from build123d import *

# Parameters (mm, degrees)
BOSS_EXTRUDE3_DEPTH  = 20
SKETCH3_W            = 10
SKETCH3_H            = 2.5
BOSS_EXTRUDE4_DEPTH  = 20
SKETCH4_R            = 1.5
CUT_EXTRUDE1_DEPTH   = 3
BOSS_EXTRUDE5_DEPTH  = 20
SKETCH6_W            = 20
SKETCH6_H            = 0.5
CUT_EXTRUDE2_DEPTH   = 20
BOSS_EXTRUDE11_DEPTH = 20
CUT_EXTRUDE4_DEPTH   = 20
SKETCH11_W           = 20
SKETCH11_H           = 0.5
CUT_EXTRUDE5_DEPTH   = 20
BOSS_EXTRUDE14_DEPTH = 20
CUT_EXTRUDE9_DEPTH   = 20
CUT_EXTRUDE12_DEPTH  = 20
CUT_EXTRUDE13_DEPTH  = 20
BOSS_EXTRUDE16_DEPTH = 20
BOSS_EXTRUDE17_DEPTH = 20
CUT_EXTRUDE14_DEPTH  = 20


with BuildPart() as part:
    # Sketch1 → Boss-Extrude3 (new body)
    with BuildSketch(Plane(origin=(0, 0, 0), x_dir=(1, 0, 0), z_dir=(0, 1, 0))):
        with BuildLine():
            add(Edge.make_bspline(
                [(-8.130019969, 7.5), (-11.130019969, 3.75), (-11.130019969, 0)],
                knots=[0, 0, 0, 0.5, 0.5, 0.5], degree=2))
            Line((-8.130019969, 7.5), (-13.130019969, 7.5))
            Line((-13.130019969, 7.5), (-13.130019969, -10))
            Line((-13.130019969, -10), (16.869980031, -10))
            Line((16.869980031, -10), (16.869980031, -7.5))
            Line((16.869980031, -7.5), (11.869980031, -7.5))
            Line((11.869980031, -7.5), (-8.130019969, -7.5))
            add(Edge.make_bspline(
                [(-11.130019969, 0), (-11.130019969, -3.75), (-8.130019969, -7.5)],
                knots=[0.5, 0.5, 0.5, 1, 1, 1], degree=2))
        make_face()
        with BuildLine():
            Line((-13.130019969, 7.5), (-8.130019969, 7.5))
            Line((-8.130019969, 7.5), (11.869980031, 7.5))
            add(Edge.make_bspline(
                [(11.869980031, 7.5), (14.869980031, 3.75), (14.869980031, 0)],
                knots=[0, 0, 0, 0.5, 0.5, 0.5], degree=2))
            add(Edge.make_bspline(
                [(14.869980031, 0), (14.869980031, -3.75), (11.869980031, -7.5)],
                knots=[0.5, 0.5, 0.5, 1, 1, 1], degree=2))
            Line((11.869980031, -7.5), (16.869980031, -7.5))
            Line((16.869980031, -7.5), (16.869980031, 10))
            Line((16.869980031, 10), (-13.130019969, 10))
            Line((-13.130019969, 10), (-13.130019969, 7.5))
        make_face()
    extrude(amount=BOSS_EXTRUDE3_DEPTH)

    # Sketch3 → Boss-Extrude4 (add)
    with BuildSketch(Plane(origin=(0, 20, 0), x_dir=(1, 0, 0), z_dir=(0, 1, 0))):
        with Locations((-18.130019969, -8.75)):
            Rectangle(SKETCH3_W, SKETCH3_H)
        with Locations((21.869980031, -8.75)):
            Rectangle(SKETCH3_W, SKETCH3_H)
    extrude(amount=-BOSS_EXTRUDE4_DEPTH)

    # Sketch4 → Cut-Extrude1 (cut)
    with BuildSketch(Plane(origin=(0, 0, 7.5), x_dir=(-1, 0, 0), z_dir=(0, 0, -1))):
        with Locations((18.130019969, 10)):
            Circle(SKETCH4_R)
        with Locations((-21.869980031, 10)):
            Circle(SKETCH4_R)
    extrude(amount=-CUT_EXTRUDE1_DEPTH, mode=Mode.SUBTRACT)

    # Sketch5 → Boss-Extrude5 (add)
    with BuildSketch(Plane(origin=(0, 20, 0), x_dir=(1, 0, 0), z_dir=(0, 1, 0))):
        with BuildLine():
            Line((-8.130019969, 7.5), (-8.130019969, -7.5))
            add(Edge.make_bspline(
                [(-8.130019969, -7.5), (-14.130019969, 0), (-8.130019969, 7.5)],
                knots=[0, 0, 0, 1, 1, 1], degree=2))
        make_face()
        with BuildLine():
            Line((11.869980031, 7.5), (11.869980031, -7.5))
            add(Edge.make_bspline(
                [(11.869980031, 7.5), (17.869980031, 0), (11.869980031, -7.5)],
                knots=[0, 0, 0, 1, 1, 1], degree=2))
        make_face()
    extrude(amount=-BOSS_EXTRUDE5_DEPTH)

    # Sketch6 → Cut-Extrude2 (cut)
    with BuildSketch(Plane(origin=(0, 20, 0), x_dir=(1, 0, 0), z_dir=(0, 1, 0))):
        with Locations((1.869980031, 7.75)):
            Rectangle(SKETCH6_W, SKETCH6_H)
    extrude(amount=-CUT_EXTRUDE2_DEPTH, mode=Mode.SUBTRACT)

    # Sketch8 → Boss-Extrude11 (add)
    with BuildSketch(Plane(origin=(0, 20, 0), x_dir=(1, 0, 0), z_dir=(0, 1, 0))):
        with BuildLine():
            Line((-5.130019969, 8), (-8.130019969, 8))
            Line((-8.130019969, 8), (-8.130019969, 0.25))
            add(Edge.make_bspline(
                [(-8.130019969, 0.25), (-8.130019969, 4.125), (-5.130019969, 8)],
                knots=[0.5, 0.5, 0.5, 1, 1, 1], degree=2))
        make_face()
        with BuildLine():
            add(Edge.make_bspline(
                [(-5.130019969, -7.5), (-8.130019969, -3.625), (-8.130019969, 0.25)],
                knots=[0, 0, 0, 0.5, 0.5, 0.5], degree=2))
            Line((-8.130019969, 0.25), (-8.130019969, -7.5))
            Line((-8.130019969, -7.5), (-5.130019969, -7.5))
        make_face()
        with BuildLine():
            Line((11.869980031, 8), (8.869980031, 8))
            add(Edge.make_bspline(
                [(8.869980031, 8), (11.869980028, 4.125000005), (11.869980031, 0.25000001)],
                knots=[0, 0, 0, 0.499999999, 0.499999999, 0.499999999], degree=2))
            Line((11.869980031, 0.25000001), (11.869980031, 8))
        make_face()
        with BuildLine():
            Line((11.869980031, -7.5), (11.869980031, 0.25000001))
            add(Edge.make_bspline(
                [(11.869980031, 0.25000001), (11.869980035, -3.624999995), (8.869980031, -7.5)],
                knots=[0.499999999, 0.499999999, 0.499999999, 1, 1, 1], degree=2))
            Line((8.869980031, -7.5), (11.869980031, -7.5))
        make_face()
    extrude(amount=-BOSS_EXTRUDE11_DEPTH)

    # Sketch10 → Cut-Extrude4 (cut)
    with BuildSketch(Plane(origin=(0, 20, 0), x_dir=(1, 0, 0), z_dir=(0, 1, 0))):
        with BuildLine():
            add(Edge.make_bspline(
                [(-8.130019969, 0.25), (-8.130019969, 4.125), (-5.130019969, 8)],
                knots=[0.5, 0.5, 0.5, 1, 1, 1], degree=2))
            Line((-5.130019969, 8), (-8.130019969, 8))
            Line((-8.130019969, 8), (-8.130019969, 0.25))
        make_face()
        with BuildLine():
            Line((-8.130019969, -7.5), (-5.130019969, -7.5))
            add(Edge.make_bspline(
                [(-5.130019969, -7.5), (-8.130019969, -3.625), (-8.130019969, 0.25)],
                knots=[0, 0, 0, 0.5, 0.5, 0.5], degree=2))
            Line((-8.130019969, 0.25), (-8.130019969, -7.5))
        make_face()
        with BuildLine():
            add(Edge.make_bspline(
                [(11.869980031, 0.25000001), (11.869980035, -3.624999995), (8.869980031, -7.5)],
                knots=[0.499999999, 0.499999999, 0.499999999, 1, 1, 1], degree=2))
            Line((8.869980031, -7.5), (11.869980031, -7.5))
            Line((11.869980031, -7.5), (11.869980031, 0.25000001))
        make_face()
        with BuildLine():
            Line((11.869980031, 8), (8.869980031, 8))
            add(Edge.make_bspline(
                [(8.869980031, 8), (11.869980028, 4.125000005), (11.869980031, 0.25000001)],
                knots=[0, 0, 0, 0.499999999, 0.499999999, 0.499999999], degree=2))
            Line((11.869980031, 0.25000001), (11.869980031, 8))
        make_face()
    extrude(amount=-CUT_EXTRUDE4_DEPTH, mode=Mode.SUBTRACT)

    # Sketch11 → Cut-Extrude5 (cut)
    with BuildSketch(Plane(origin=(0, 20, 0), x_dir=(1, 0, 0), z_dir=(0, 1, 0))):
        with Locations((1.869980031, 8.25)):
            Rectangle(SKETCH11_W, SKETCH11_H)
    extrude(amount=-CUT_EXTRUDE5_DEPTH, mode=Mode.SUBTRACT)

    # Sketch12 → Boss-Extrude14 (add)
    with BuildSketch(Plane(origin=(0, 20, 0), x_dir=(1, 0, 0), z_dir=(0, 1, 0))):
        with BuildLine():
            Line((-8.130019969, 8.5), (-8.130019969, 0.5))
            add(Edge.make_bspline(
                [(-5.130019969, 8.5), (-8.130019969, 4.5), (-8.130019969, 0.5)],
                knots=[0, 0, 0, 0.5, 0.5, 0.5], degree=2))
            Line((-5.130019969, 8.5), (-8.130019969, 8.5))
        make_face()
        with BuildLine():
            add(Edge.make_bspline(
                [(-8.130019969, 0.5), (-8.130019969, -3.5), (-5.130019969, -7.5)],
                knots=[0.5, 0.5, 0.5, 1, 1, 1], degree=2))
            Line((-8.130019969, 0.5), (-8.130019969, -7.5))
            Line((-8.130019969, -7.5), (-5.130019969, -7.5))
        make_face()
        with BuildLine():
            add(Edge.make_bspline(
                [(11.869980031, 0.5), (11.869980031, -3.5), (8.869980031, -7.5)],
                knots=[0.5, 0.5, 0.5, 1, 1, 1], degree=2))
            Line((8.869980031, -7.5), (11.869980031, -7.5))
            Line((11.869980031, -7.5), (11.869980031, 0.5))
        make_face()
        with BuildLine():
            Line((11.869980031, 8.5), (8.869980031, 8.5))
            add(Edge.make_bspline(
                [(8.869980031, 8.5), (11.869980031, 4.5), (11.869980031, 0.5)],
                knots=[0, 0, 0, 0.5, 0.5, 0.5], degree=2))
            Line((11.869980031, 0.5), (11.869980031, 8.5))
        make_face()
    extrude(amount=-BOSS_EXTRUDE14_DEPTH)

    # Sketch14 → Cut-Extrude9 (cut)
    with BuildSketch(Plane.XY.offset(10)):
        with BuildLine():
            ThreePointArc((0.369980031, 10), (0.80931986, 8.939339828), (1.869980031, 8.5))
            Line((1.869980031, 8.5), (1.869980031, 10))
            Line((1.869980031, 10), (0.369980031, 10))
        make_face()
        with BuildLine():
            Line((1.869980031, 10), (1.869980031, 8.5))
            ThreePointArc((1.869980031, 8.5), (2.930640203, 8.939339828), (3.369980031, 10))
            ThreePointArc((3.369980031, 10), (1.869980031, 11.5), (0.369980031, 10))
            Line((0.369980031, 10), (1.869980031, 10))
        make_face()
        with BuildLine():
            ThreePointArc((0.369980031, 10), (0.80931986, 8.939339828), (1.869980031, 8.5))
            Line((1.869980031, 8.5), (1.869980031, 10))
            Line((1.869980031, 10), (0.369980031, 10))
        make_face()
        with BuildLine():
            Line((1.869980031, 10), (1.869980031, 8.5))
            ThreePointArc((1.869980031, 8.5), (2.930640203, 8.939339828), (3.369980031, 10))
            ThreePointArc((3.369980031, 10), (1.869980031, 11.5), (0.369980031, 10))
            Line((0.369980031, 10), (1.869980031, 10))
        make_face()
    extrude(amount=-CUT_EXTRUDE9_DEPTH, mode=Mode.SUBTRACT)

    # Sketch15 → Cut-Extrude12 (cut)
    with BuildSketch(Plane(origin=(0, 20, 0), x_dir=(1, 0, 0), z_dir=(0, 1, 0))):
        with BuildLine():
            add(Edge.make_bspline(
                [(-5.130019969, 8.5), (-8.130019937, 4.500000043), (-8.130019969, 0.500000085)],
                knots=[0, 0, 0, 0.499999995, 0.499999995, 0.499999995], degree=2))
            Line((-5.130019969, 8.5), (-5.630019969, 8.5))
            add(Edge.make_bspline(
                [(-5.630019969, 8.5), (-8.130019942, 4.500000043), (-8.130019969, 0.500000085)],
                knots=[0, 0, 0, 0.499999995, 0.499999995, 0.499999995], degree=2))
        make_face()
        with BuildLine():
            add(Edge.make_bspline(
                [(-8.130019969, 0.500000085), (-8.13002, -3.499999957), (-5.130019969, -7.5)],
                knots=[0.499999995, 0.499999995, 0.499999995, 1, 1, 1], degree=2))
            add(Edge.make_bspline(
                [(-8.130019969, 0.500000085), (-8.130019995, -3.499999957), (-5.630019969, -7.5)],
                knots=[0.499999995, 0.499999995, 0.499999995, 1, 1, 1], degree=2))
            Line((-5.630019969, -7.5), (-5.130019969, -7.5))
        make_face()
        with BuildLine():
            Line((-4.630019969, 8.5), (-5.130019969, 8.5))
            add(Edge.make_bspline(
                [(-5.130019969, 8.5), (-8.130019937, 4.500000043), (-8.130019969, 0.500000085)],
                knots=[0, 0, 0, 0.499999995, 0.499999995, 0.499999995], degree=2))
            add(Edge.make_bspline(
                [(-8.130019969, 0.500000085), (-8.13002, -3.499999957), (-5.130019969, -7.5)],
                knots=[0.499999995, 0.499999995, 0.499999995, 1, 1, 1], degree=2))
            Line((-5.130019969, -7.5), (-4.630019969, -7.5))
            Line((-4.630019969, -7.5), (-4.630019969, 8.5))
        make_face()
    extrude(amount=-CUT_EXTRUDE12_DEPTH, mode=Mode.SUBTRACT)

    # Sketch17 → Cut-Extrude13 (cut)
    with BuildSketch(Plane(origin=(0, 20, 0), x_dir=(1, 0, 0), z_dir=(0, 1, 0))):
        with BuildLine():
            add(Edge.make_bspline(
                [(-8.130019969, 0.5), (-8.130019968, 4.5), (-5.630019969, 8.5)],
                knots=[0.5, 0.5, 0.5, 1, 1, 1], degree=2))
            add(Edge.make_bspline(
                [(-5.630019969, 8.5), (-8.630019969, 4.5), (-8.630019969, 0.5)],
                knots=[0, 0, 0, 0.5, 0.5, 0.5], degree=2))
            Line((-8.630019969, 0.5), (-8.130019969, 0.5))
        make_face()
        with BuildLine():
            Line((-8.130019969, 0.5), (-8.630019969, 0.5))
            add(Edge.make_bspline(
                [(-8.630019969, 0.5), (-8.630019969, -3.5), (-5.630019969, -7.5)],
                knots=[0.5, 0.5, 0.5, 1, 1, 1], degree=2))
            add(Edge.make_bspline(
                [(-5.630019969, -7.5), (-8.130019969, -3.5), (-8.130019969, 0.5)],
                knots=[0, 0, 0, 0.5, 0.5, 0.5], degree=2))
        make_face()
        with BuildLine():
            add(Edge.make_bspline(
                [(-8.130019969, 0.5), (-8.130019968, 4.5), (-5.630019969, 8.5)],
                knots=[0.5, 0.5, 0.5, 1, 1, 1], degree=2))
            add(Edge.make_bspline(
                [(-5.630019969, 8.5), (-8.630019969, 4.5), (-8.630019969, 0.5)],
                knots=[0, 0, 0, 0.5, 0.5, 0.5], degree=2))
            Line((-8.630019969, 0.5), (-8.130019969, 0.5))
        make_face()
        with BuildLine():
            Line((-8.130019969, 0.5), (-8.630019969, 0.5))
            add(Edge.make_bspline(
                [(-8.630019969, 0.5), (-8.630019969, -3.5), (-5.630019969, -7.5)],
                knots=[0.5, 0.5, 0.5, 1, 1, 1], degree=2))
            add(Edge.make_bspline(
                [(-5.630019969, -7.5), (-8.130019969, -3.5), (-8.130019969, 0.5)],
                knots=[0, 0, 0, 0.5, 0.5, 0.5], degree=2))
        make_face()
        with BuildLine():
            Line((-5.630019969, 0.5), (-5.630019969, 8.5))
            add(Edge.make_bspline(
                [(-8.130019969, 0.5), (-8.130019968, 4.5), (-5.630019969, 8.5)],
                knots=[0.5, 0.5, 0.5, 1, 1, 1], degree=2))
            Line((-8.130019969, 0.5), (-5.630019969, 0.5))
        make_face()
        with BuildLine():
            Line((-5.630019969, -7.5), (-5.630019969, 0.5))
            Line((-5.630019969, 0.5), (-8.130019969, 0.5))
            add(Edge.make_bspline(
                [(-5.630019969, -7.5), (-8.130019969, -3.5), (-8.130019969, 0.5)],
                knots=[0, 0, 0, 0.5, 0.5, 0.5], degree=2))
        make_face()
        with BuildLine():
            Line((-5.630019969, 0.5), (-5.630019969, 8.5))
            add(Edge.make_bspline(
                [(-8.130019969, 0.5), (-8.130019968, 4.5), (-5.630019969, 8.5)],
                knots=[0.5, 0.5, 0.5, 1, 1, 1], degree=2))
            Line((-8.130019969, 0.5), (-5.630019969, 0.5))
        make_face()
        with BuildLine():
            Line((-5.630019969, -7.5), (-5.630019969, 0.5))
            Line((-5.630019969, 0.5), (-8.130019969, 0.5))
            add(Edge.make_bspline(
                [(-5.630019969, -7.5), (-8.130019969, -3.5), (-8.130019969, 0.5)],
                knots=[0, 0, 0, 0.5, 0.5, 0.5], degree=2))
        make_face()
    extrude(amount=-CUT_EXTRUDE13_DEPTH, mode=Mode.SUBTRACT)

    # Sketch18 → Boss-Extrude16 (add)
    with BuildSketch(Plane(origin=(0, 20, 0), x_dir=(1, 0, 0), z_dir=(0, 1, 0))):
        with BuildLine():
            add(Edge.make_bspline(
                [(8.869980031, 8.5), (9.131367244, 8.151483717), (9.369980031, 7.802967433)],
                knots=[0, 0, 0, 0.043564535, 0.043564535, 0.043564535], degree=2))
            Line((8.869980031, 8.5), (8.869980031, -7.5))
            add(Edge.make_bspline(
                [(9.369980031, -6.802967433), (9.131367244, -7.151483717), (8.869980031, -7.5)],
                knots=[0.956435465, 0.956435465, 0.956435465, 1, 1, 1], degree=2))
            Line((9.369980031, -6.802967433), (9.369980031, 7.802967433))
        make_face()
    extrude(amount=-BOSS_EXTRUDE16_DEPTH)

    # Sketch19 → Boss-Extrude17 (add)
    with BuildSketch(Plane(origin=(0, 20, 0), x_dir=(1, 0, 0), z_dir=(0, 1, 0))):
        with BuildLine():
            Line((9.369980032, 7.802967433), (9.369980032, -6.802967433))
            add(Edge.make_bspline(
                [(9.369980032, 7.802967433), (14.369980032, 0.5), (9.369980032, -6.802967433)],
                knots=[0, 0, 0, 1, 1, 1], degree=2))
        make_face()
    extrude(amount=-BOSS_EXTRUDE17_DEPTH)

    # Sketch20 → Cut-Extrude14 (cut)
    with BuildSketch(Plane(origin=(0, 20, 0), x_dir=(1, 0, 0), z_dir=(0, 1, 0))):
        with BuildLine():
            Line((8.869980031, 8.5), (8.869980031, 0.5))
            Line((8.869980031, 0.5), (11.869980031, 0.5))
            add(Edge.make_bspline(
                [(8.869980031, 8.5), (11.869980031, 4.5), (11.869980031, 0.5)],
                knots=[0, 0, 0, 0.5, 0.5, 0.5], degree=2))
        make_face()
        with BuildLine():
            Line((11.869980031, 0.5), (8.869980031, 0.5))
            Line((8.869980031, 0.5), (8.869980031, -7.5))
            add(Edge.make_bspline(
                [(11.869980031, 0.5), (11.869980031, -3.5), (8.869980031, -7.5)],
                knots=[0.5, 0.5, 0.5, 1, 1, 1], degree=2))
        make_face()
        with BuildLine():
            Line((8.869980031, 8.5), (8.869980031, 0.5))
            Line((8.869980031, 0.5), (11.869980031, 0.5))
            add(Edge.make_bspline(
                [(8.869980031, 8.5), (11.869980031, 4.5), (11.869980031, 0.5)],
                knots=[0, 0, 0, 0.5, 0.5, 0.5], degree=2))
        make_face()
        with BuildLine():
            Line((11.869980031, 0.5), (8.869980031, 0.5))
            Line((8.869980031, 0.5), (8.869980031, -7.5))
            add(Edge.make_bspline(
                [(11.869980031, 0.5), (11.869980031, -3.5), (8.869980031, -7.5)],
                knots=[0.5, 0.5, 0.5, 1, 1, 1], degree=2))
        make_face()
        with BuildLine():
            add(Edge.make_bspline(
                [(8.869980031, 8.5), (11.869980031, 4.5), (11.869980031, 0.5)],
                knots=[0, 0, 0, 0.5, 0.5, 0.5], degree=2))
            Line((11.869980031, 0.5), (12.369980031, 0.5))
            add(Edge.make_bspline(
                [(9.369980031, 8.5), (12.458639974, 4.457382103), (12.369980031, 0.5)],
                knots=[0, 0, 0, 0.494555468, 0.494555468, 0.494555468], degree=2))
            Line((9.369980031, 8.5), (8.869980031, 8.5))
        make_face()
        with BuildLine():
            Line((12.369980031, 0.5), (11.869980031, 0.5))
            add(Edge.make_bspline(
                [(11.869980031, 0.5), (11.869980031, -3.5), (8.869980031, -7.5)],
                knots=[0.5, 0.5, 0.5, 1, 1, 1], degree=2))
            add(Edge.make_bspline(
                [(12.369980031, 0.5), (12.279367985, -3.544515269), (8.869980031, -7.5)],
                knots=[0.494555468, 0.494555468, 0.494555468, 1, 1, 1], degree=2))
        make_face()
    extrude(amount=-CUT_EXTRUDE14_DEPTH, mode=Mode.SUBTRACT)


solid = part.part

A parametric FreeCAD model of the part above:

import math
import FreeCAD as App
import Part
import Sketcher
from FreeCAD import Vector
Q = App.Units.Quantity

doc = App.newDocument("Part")
body = doc.addObject("PartDesign::Body", "Body")

sketch1 = body.newObject("Sketcher::SketchObject", "Sketch")
sketch1.AttachmentSupport = (doc.getObject("XZ_Plane"), [""])
sketch1.MapMode = "FlatFace"
sketch1.addGeometry(Part.BSplineCurve([Vector(-8.13002, -7.5, 0), Vector(-14.13002, 0, 0), Vector(-8.13002, 7.5, 0)], [3, 3], [0, 1], False, 2, [1, 1, 1], False), False)
sketch1.addGeometry(Part.LineSegment(Vector(-8.13002, -7.5, 0), Vector(11.86998, -7.5, 0)), False)
sketch1.addGeometry(Part.BSplineCurve([Vector(11.86998, -7.5, 0), Vector(17.86998, 0, 0), Vector(11.86998, 7.5, 0)], [3, 3], [0, 1], False, 2, [1, 1, 1], False), False)
sketch1.addGeometry(Part.LineSegment(Vector(11.86998, 7.5, 0), Vector(-8.13002, 7.5, 0)), False)
sketch1.addGeometry(Part.LineSegment(Vector(16.86998, 10, 0), Vector(16.86998, -10, 0)), False)
sketch1.addGeometry(Part.LineSegment(Vector(16.86998, -10, 0), Vector(-13.13002, -10, 0)), False)
sketch1.addGeometry(Part.LineSegment(Vector(-13.13002, -10, 0), Vector(-13.13002, 10, 0)), False)
sketch1.addGeometry(Part.LineSegment(Vector(-13.13002, 10, 0), Vector(16.86998, 10, 0)), False)
sketch1.addConstraint(Sketcher.Constraint("Block", 0))
sketch1.addConstraint(Sketcher.Constraint("Block", 2))
sketch1.addConstraint(Sketcher.Constraint("Coincident", 0, 1, 1, 1))
sketch1.addConstraint(Sketcher.Constraint("Coincident", 1, 2, 2, 1))
sketch1.addConstraint(Sketcher.Constraint("Coincident", 2, 2, 3, 1))
sketch1.addConstraint(Sketcher.Constraint("Coincident", 3, 2, 0, 2))
sketch1.addConstraint(Sketcher.Constraint("Coincident", 4, 2, 5, 1))
sketch1.addConstraint(Sketcher.Constraint("Coincident", 5, 2, 6, 1))
sketch1.addConstraint(Sketcher.Constraint("Coincident", 6, 2, 7, 1))
sketch1.addConstraint(Sketcher.Constraint("Coincident", 7, 2, 4, 1))
sketch1.addConstraint(Sketcher.Constraint("Vertical", 4))
sketch1.addConstraint(Sketcher.Constraint("Horizontal", 5))
sketch1.addConstraint(Sketcher.Constraint("Vertical", 6))
sketch1.addConstraint(Sketcher.Constraint("Horizontal", 7))
sketch1.addConstraint(Sketcher.Constraint("Equal", 3, 4))
sketch1.addConstraint(Sketcher.Constraint("DistanceX", 5, 2, 5, 1, Q("30 mm")))
sketch1.addConstraint(Sketcher.Constraint("DistanceY", 4, 2, -1, 1, Q("10 mm")))
sketch1.addConstraint(Sketcher.Constraint("DistanceX", 1, 2, 4, 2, Q("5 mm")))
pad1 = body.newObject("PartDesign::Pad", "Pad")
pad1.Profile = sketch1
pad1.Length = 20
pad1.Reversed = True

sketch2 = body.newObject("Sketcher::SketchObject", "Sketch001")
sketch2.AttachmentSupport = (doc.getObject("XZ_Plane"), [""])
sketch2.MapMode = "FlatFace"
sketch2.AttachmentOffset = App.Placement(Vector(0, 0, -20), App.Rotation())
sketch2.addGeometry(Part.LineSegment(Vector(-23.1, 7.5, 0), Vector(-23.1, 10, 0)), False)
sketch2.addGeometry(Part.LineSegment(Vector(-23.1, 10, 0), Vector(-13.1, 10, 0)), False)
sketch2.addGeometry(Part.LineSegment(Vector(-13.1, 10, 0), Vector(-13.1, 7.5, 0)), False)
sketch2.addGeometry(Part.LineSegment(Vector(-13.1, 7.5, 0), Vector(-23.1, 7.5, 0)), False)
sketch2.addGeometry(Part.LineSegment(Vector(16.9, 7.5, 0), Vector(16.9, 10, 0)), False)
sketch2.addGeometry(Part.LineSegment(Vector(16.9, 10, 0), Vector(26.9, 10, 0)), False)
sketch2.addGeometry(Part.LineSegment(Vector(26.9, 10, 0), Vector(26.9, 7.5, 0)), False)
sketch2.addGeometry(Part.LineSegment(Vector(26.9, 7.5, 0), Vector(16.9, 7.5, 0)), False)
sketch2.addConstraint(Sketcher.Constraint("Coincident", 0, 2, 1, 1))
sketch2.addConstraint(Sketcher.Constraint("Coincident", 1, 2, 2, 1))
sketch2.addConstraint(Sketcher.Constraint("Coincident", 2, 2, 3, 1))
sketch2.addConstraint(Sketcher.Constraint("Coincident", 3, 2, 0, 1))
sketch2.addConstraint(Sketcher.Constraint("Coincident", 4, 2, 5, 1))
sketch2.addConstraint(Sketcher.Constraint("Coincident", 5, 2, 6, 1))
sketch2.addConstraint(Sketcher.Constraint("Coincident", 6, 2, 7, 1))
sketch2.addConstraint(Sketcher.Constraint("Coincident", 7, 2, 4, 1))
sketch2.addConstraint(Sketcher.Constraint("Vertical", 0))
sketch2.addConstraint(Sketcher.Constraint("Horizontal", 1))
sketch2.addConstraint(Sketcher.Constraint("Vertical", 2))
sketch2.addConstraint(Sketcher.Constraint("Horizontal", 3))
sketch2.addConstraint(Sketcher.Constraint("Vertical", 4))
sketch2.addConstraint(Sketcher.Constraint("Horizontal", 5))
sketch2.addConstraint(Sketcher.Constraint("Vertical", 6))
sketch2.addConstraint(Sketcher.Constraint("Horizontal", 7))
sketch2.addConstraint(Sketcher.Constraint("Horizontal", 1, 2, 4, 2))
sketch2.addConstraint(Sketcher.Constraint("Horizontal", 3, 2, 6, 2))
sketch2.addConstraint(Sketcher.Constraint("Equal", 3, 5))
sketch2.addConstraint(Sketcher.Constraint("DistanceX", 1, 1, 1, 2, Q("10 mm")))
sketch2.addConstraint(Sketcher.Constraint("DistanceY", 0, 1, 0, 2, Q("2.5 mm")))
sketch2.addConstraint(Sketcher.Constraint("DistanceY", -1, 1, 0, 2, Q("10 mm")))
sketch2.addConstraint(Sketcher.Constraint("DistanceX", 1, 2, 4, 2, Q("30 mm")))
sketch2.addConstraint(Sketcher.Constraint("DistanceX", 0, 2, -1, 1, Q("23.13002 mm")))
pad2 = body.newObject("PartDesign::Pad", "Pad001")
pad2.Profile = sketch2
pad2.Length = 20

sketch3 = body.newObject("Sketcher::SketchObject", "Sketch002")
sketch3.AttachmentSupport = (doc.getObject("XY_Plane"), [""])
sketch3.MapMode = "FlatFace"
sketch3.AttachmentOffset = App.Placement(Vector(0, 0, 7.5), App.Rotation())
sketch3.addGeometry(Part.Circle(Vector(-18.1, 10, 0), Vector(0, 0, 1), 1.5), False)
sketch3.addGeometry(Part.Circle(Vector(21.9, 10, 0), Vector(0, 0, 1), 1.5), False)
sketch3.addConstraint(Sketcher.Constraint("Equal", 0, 1))
sketch3.addConstraint(Sketcher.Constraint("Horizontal", 0, 3, 1, 3))
sketch3.addConstraint(Sketcher.Constraint("Diameter", 0, Q("3 mm")))
sketch3.addConstraint(Sketcher.Constraint("DistanceY", -1, 1, 0, 3, Q("10 mm")))
sketch3.addConstraint(Sketcher.Constraint("DistanceX", 0, 3, 1, 3, Q("40 mm")))
sketch3.addConstraint(Sketcher.Constraint("DistanceX", 0, 3, -1, 1, Q("18.13002 mm")))
pocket1 = body.newObject("PartDesign::Pocket", "Pocket")
pocket1.Profile = sketch3
pocket1.Length = 3
pocket1.Reversed = True

sketch4 = body.newObject("Sketcher::SketchObject", "Sketch003")
sketch4.AttachmentSupport = (doc.getObject("XZ_Plane"), [""])
sketch4.MapMode = "FlatFace"
sketch4.AttachmentOffset = App.Placement(Vector(0, 0, -20), App.Rotation())
sketch4.addGeometry(Part.LineSegment(Vector(-8.13002, 7.5, 0), Vector(-8.13002, -7.5, 0)), False)
sketch4.addGeometry(Part.BSplineCurve([Vector(-8.13002, 7.5, 0), Vector(-14.13002, 0, 0), Vector(-8.13002, -7.5, 0)], [3, 3], [0, 1], False, 2, [1, 1, 1], False), False)
sketch4.addGeometry(Part.LineSegment(Vector(11.86998, -7.5, 0), Vector(11.86998, 7.5, 0)), False)
sketch4.addGeometry(Part.BSplineCurve([Vector(11.86998, -7.5, 0), Vector(17.86998, 0, 0), Vector(11.86998, 7.5, 0)], [3, 3], [0, 1], False, 2, [1, 1, 1], False), False)
sketch4.addConstraint(Sketcher.Constraint("Block", 1))
sketch4.addConstraint(Sketcher.Constraint("Block", 3))
sketch4.addConstraint(Sketcher.Constraint("Coincident", 0, 1, 1, 1))
sketch4.addConstraint(Sketcher.Constraint("Coincident", 1, 2, 0, 2))
sketch4.addConstraint(Sketcher.Constraint("Coincident", 2, 1, 3, 1))
sketch4.addConstraint(Sketcher.Constraint("Coincident", 3, 2, 2, 2))
pad3 = body.newObject("PartDesign::Pad", "Pad002")
pad3.Profile = sketch4
pad3.Length = 20

sketch5 = body.newObject("Sketcher::SketchObject", "Sketch004")
sketch5.AttachmentSupport = (doc.getObject("XZ_Plane"), [""])
sketch5.MapMode = "FlatFace"
sketch5.AttachmentOffset = App.Placement(Vector(0, 0, -20), App.Rotation())
sketch5.addGeometry(Part.LineSegment(Vector(-8.1, -8, 0), Vector(-8.1, -7.5, 0)), False)
sketch5.addGeometry(Part.LineSegment(Vector(-8.1, -7.5, 0), Vector(11.9, -7.5, 0)), False)
sketch5.addGeometry(Part.LineSegment(Vector(11.9, -7.5, 0), Vector(11.9, -8, 0)), False)
sketch5.addGeometry(Part.LineSegment(Vector(11.9, -8, 0), Vector(-8.1, -8, 0)), False)
sketch5.addConstraint(Sketcher.Constraint("Coincident", 0, 2, 1, 1))
sketch5.addConstraint(Sketcher.Constraint("Coincident", 1, 2, 2, 1))
sketch5.addConstraint(Sketcher.Constraint("Coincident", 2, 2, 3, 1))
sketch5.addConstraint(Sketcher.Constraint("Coincident", 3, 2, 0, 1))
sketch5.addConstraint(Sketcher.Constraint("Vertical", 0))
sketch5.addConstraint(Sketcher.Constraint("Horizontal", 1))
sketch5.addConstraint(Sketcher.Constraint("Vertical", 2))
sketch5.addConstraint(Sketcher.Constraint("Horizontal", 3))
sketch5.addConstraint(Sketcher.Constraint("DistanceX", 1, 1, 1, 2, Q("20 mm")))
sketch5.addConstraint(Sketcher.Constraint("DistanceY", 0, 1, 0, 2, Q("0.5 mm")))
sketch5.addConstraint(Sketcher.Constraint("DistanceY", 2, 2, -1, 1, Q("8 mm")))
sketch5.addConstraint(Sketcher.Constraint("DistanceX", 0, 2, -1, 1, Q("8.13002 mm")))
pocket2 = body.newObject("PartDesign::Pocket", "Pocket001")
pocket2.Profile = sketch5
pocket2.Length = 20
pocket2.Reversed = True

sketch6 = body.newObject("Sketcher::SketchObject", "Sketch005")
sketch6.AttachmentSupport = (doc.getObject("XZ_Plane"), [""])
sketch6.MapMode = "FlatFace"
sketch6.AttachmentOffset = App.Placement(Vector(0, 0, -20), App.Rotation())
sketch6.addGeometry(Part.LineSegment(Vector(-5.13002, -8, 0), Vector(-8.13002, -8, 0)), False)
sketch6.addGeometry(Part.LineSegment(Vector(-8.13002, -8, 0), Vector(-8.13002, -0.25, 0)), False)
sketch6.addGeometry(Part.BSplineCurve([Vector(-8.13002, -0.25, 0), Vector(-8.13002, -4.125, 0), Vector(-5.13002, -8, 0)], [3, 3], [0.5, 1], False, 2, [1, 1, 1], False), False)
sketch6.addGeometry(Part.BSplineCurve([Vector(-5.13002, 7.5, 0), Vector(-8.13002, 3.625, 0), Vector(-8.13002, -0.25, 0)], [3, 3], [0, 0.5], False, 2, [1, 1, 1], False), False)
sketch6.addGeometry(Part.LineSegment(Vector(-8.13002, -0.25, 0), Vector(-8.13002, 7.5, 0)), False)
sketch6.addGeometry(Part.LineSegment(Vector(-8.13002, 7.5, 0), Vector(-5.13002, 7.5, 0)), False)
sketch6.addGeometry(Part.LineSegment(Vector(11.86998, -8, 0), Vector(8.86998, -8, 0)), False)
sketch6.addGeometry(Part.BSplineCurve([Vector(8.86998, -8, 0), Vector(11.86998, -4.125, 0), Vector(11.86998, -0.25, 0)], [3, 3], [0, 0.499999999], False, 2, [1, 1, 1], False), False)
sketch6.addGeometry(Part.LineSegment(Vector(11.86998, -0.25, 0), Vector(11.86998, -8, 0)), False)
sketch6.addGeometry(Part.LineSegment(Vector(11.86998, 7.5, 0), Vector(11.86998, -0.25, 0)), False)
sketch6.addGeometry(Part.BSplineCurve([Vector(11.86998, -0.25, 0), Vector(11.86998, 3.625, 0), Vector(8.86998, 7.5, 0)], [3, 3], [0.499999999, 1], False, 2, [1, 1, 1], False), False)
sketch6.addGeometry(Part.LineSegment(Vector(8.86998, 7.5, 0), Vector(11.86998, 7.5, 0)), False)
sketch6.addConstraint(Sketcher.Constraint("Block", 2))
sketch6.addConstraint(Sketcher.Constraint("Block", 3))
sketch6.addConstraint(Sketcher.Constraint("Block", 7))
sketch6.addConstraint(Sketcher.Constraint("Block", 10))
sketch6.addConstraint(Sketcher.Constraint("Coincident", 0, 2, 1, 1))
sketch6.addConstraint(Sketcher.Constraint("Coincident", 1, 2, 2, 1))
sketch6.addConstraint(Sketcher.Constraint("Coincident", 2, 2, 0, 1))
sketch6.addConstraint(Sketcher.Constraint("Coincident", 3, 2, 4, 1))
sketch6.addConstraint(Sketcher.Constraint("Coincident", 4, 2, 5, 1))
sketch6.addConstraint(Sketcher.Constraint("Coincident", 5, 2, 3, 1))
sketch6.addConstraint(Sketcher.Constraint("Coincident", 6, 2, 7, 1))
sketch6.addConstraint(Sketcher.Constraint("Coincident", 7, 2, 8, 1))
sketch6.addConstraint(Sketcher.Constraint("Coincident", 8, 2, 6, 1))
sketch6.addConstraint(Sketcher.Constraint("Coincident", 9, 2, 10, 1))
sketch6.addConstraint(Sketcher.Constraint("Coincident", 10, 2, 11, 1))
sketch6.addConstraint(Sketcher.Constraint("Coincident", 11, 2, 9, 1))
sketch6.addConstraint(Sketcher.Constraint("Horizontal", 0))
sketch6.addConstraint(Sketcher.Constraint("Vertical", 1))
sketch6.addConstraint(Sketcher.Constraint("Vertical", 4))
sketch6.addConstraint(Sketcher.Constraint("Horizontal", 5))
sketch6.addConstraint(Sketcher.Constraint("Horizontal", 6))
sketch6.addConstraint(Sketcher.Constraint("Vertical", 8))
sketch6.addConstraint(Sketcher.Constraint("Vertical", 9))
sketch6.addConstraint(Sketcher.Constraint("Horizontal", 11))
pad4 = body.newObject("PartDesign::Pad", "Pad003")
pad4.Profile = sketch6
pad4.Length = 20

sketch7 = body.newObject("Sketcher::SketchObject", "Sketch006")
sketch7.AttachmentSupport = (doc.getObject("XZ_Plane"), [""])
sketch7.MapMode = "FlatFace"
sketch7.AttachmentOffset = App.Placement(Vector(0, 0, -20), App.Rotation())
sketch7.addGeometry(Part.BSplineCurve([Vector(-8.13002, -0.25, 0), Vector(-8.13002, -4.125, 0), Vector(-5.13002, -8, 0)], [3, 3], [0.5, 1], False, 2, [1, 1, 1], False), False)
sketch7.addGeometry(Part.LineSegment(Vector(-5.13002, -8, 0), Vector(-8.13002, -8, 0)), False)
sketch7.addGeometry(Part.LineSegment(Vector(-8.13002, -8, 0), Vector(-8.13002, -0.25, 0)), False)
sketch7.addGeometry(Part.LineSegment(Vector(-8.13002, 7.5, 0), Vector(-5.13002, 7.5, 0)), False)
sketch7.addGeometry(Part.BSplineCurve([Vector(-5.13002, 7.5, 0), Vector(-8.13002, 3.625, 0), Vector(-8.13002, -0.25, 0)], [3, 3], [0, 0.5], False, 2, [1, 1, 1], False), False)
sketch7.addGeometry(Part.LineSegment(Vector(-8.13002, -0.25, 0), Vector(-8.13002, 7.5, 0)), False)
sketch7.addGeometry(Part.BSplineCurve([Vector(11.86998, -0.25, 0), Vector(11.86998, 3.625, 0), Vector(8.86998, 7.5, 0)], [3, 3], [0.499999999, 1], False, 2, [1, 1, 1], False), False)
sketch7.addGeometry(Part.LineSegment(Vector(8.86998, 7.5, 0), Vector(11.86998, 7.5, 0)), False)
sketch7.addGeometry(Part.LineSegment(Vector(11.86998, 7.5, 0), Vector(11.86998, -0.25, 0)), False)
sketch7.addGeometry(Part.LineSegment(Vector(11.86998, -8, 0), Vector(8.86998, -8, 0)), False)
sketch7.addGeometry(Part.BSplineCurve([Vector(8.86998, -8, 0), Vector(11.86998, -4.125, 0), Vector(11.86998, -0.25, 0)], [3, 3], [0, 0.499999999], False, 2, [1, 1, 1], False), False)
sketch7.addGeometry(Part.LineSegment(Vector(11.86998, -0.25, 0), Vector(11.86998, -8, 0)), False)
sketch7.addConstraint(Sketcher.Constraint("Block", 0))
sketch7.addConstraint(Sketcher.Constraint("Block", 4))
sketch7.addConstraint(Sketcher.Constraint("Block", 6))
sketch7.addConstraint(Sketcher.Constraint("Block", 10))
sketch7.addConstraint(Sketcher.Constraint("Coincident", 0, 2, 1, 1))
sketch7.addConstraint(Sketcher.Constraint("Coincident", 1, 2, 2, 1))
sketch7.addConstraint(Sketcher.Constraint("Coincident", 2, 2, 0, 1))
sketch7.addConstraint(Sketcher.Constraint("Coincident", 3, 2, 4, 1))
sketch7.addConstraint(Sketcher.Constraint("Coincident", 4, 2, 5, 1))
sketch7.addConstraint(Sketcher.Constraint("Coincident", 5, 2, 3, 1))
sketch7.addConstraint(Sketcher.Constraint("Coincident", 6, 2, 7, 1))
sketch7.addConstraint(Sketcher.Constraint("Coincident", 7, 2, 8, 1))
sketch7.addConstraint(Sketcher.Constraint("Coincident", 8, 2, 6, 1))
sketch7.addConstraint(Sketcher.Constraint("Coincident", 9, 2, 10, 1))
sketch7.addConstraint(Sketcher.Constraint("Coincident", 10, 2, 11, 1))
sketch7.addConstraint(Sketcher.Constraint("Coincident", 11, 2, 9, 1))
sketch7.addConstraint(Sketcher.Constraint("Horizontal", 1))
sketch7.addConstraint(Sketcher.Constraint("Vertical", 2))
sketch7.addConstraint(Sketcher.Constraint("Horizontal", 3))
sketch7.addConstraint(Sketcher.Constraint("Vertical", 5))
sketch7.addConstraint(Sketcher.Constraint("Horizontal", 7))
sketch7.addConstraint(Sketcher.Constraint("Vertical", 8))
sketch7.addConstraint(Sketcher.Constraint("Horizontal", 9))
sketch7.addConstraint(Sketcher.Constraint("Vertical", 11))
pocket3 = body.newObject("PartDesign::Pocket", "Pocket002")
pocket3.Profile = sketch7
pocket3.Length = 20
pocket3.Reversed = True

sketch8 = body.newObject("Sketcher::SketchObject", "Sketch007")
sketch8.AttachmentSupport = (doc.getObject("XZ_Plane"), [""])
sketch8.MapMode = "FlatFace"
sketch8.AttachmentOffset = App.Placement(Vector(0, 0, -20), App.Rotation())
sketch8.addGeometry(Part.LineSegment(Vector(-8.1, -8.5, 0), Vector(-8.1, -8, 0)), False)
sketch8.addGeometry(Part.LineSegment(Vector(-8.1, -8, 0), Vector(11.9, -8, 0)), False)
sketch8.addGeometry(Part.LineSegment(Vector(11.9, -8, 0), Vector(11.9, -8.5, 0)), False)
sketch8.addGeometry(Part.LineSegment(Vector(11.9, -8.5, 0), Vector(-8.1, -8.5, 0)), False)
sketch8.addConstraint(Sketcher.Constraint("Coincident", 0, 2, 1, 1))
sketch8.addConstraint(Sketcher.Constraint("Coincident", 1, 2, 2, 1))
sketch8.addConstraint(Sketcher.Constraint("Coincident", 2, 2, 3, 1))
sketch8.addConstraint(Sketcher.Constraint("Coincident", 3, 2, 0, 1))
sketch8.addConstraint(Sketcher.Constraint("Vertical", 0))
sketch8.addConstraint(Sketcher.Constraint("Horizontal", 1))
sketch8.addConstraint(Sketcher.Constraint("Vertical", 2))
sketch8.addConstraint(Sketcher.Constraint("Horizontal", 3))
sketch8.addConstraint(Sketcher.Constraint("DistanceX", 1, 1, 1, 2, Q("20 mm")))
sketch8.addConstraint(Sketcher.Constraint("DistanceY", 0, 1, 0, 2, Q("0.5 mm")))
sketch8.addConstraint(Sketcher.Constraint("DistanceY", 0, 2, -1, 1, Q("8 mm")))
sketch8.addConstraint(Sketcher.Constraint("DistanceX", 0, 2, -1, 1, Q("8.13002 mm")))
pocket4 = body.newObject("PartDesign::Pocket", "Pocket003")
pocket4.Profile = sketch8
pocket4.Length = 20
pocket4.Reversed = True

sketch9 = body.newObject("Sketcher::SketchObject", "Sketch008")
sketch9.AttachmentSupport = (doc.getObject("XZ_Plane"), [""])
sketch9.MapMode = "FlatFace"
sketch9.AttachmentOffset = App.Placement(Vector(0, 0, -20), App.Rotation())
sketch9.addGeometry(Part.LineSegment(Vector(-8.13002, -8.5, 0), Vector(-8.13002, -0.5, 0)), False)
sketch9.addGeometry(Part.BSplineCurve([Vector(-5.13002, -8.5, 0), Vector(-8.13002, -4.5, 0), Vector(-8.13002, -0.5, 0)], [3, 3], [0, 0.5], False, 2, [1, 1, 1], False), False)
sketch9.addGeometry(Part.LineSegment(Vector(-5.13002, -8.5, 0), Vector(-8.13002, -8.5, 0)), False)
sketch9.addGeometry(Part.BSplineCurve([Vector(-8.13002, -0.5, 0), Vector(-8.13002, 3.5, 0), Vector(-5.13002, 7.5, 0)], [3, 3], [0.5, 1], False, 2, [1, 1, 1], False), False)
sketch9.addGeometry(Part.LineSegment(Vector(-8.13002, -0.5, 0), Vector(-8.13002, 7.5, 0)), False)
sketch9.addGeometry(Part.LineSegment(Vector(-8.13002, 7.5, 0), Vector(-5.13002, 7.5, 0)), False)
sketch9.addGeometry(Part.BSplineCurve([Vector(11.86998, -0.5, 0), Vector(11.86998, 3.5, 0), Vector(8.86998, 7.5, 0)], [3, 3], [0.5, 1], False, 2, [1, 1, 1], False), False)
sketch9.addGeometry(Part.LineSegment(Vector(8.86998, 7.5, 0), Vector(11.86998, 7.5, 0)), False)
sketch9.addGeometry(Part.LineSegment(Vector(11.86998, 7.5, 0), Vector(11.86998, -0.5, 0)), False)
sketch9.addGeometry(Part.LineSegment(Vector(11.86998, -8.5, 0), Vector(8.86998, -8.5, 0)), False)
sketch9.addGeometry(Part.BSplineCurve([Vector(8.86998, -8.5, 0), Vector(11.86998, -4.5, 0), Vector(11.86998, -0.5, 0)], [3, 3], [0, 0.5], False, 2, [1, 1, 1], False), False)
sketch9.addGeometry(Part.LineSegment(Vector(11.86998, -0.5, 0), Vector(11.86998, -8.5, 0)), False)
sketch9.addConstraint(Sketcher.Constraint("Block", 1))
sketch9.addConstraint(Sketcher.Constraint("Block", 3))
sketch9.addConstraint(Sketcher.Constraint("Block", 6))
sketch9.addConstraint(Sketcher.Constraint("Block", 10))
sketch9.addConstraint(Sketcher.Constraint("Coincident", 0, 2, 1, 2))
sketch9.addConstraint(Sketcher.Constraint("Coincident", 1, 1, 2, 1))
sketch9.addConstraint(Sketcher.Constraint("Coincident", 2, 2, 0, 1))
sketch9.addConstraint(Sketcher.Constraint("Coincident", 3, 1, 4, 1))
sketch9.addConstraint(Sketcher.Constraint("Coincident", 4, 2, 5, 1))
sketch9.addConstraint(Sketcher.Constraint("Coincident", 5, 2, 3, 2))
sketch9.addConstraint(Sketcher.Constraint("Coincident", 6, 2, 7, 1))
sketch9.addConstraint(Sketcher.Constraint("Coincident", 7, 2, 8, 1))
sketch9.addConstraint(Sketcher.Constraint("Coincident", 8, 2, 6, 1))
sketch9.addConstraint(Sketcher.Constraint("Coincident", 9, 2, 10, 1))
sketch9.addConstraint(Sketcher.Constraint("Coincident", 10, 2, 11, 1))
sketch9.addConstraint(Sketcher.Constraint("Coincident", 11, 2, 9, 1))
sketch9.addConstraint(Sketcher.Constraint("Vertical", 0))
sketch9.addConstraint(Sketcher.Constraint("Horizontal", 2))
sketch9.addConstraint(Sketcher.Constraint("Vertical", 4))
sketch9.addConstraint(Sketcher.Constraint("Horizontal", 5))
sketch9.addConstraint(Sketcher.Constraint("Horizontal", 7))
sketch9.addConstraint(Sketcher.Constraint("Vertical", 8))
sketch9.addConstraint(Sketcher.Constraint("Horizontal", 9))
sketch9.addConstraint(Sketcher.Constraint("Vertical", 11))
pad5 = body.newObject("PartDesign::Pad", "Pad004")
pad5.Profile = sketch9
pad5.Length = 20

sketch10 = body.newObject("Sketcher::SketchObject", "Sketch009")
sketch10.AttachmentSupport = (doc.getObject("XY_Plane"), [""])
sketch10.MapMode = "FlatFace"
sketch10.AttachmentOffset = App.Placement(Vector(0, 0, 10), App.Rotation())
sketch10.addGeometry(Part.ArcOfCircle(Part.Circle(Vector(1.9, 10, 0), Vector(0, 0, 1), 1.5), math.radians(-180), math.radians(-90)), False)
sketch10.addGeometry(Part.ArcOfCircle(Part.Circle(Vector(1.9, 10, 0), Vector(0, 0, 1), 1.5), math.radians(-90), math.radians(0)), False)
sketch10.addGeometry(Part.ArcOfCircle(Part.Circle(Vector(1.9, 10, 0), Vector(0, 0, 1), 1.5), math.radians(0), math.radians(180)), False)
sketch10.addConstraint(Sketcher.Constraint("Tangent", 0, 2, 1, 1))
sketch10.addConstraint(Sketcher.Constraint("Tangent", 1, 2, 2, 1))
sketch10.addConstraint(Sketcher.Constraint("Tangent", 2, 2, 0, 1))
sketch10.addConstraint(Sketcher.Constraint("Horizontal", 2, 3, 1, 2))
sketch10.addConstraint(Sketcher.Constraint("Horizontal", 1, 2, 2, 2))
sketch10.addConstraint(Sketcher.Constraint("Vertical", 2, 3, 0, 2))
sketch10.addConstraint(Sketcher.Constraint("Radius", 0, Q("1.5 mm")))
sketch10.addConstraint(Sketcher.Constraint("DistanceY", -1, 1, 0, 3, Q("10 mm")))
sketch10.addConstraint(Sketcher.Constraint("DistanceX", -1, 1, 0, 3, Q("1.86998 mm")))
pocket5 = body.newObject("PartDesign::Pocket", "Pocket004")
pocket5.Profile = sketch10
pocket5.Length = 20

sketch11 = body.newObject("Sketcher::SketchObject", "Sketch010")
sketch11.AttachmentSupport = (doc.getObject("XZ_Plane"), [""])
sketch11.MapMode = "FlatFace"
sketch11.AttachmentOffset = App.Placement(Vector(0, 0, -20), App.Rotation())
sketch11.addGeometry(Part.BSplineCurve([Vector(-5.63002, -8.5, 0), Vector(-8.13002, -4.5, 0), Vector(-8.13002, -0.5, 0)], [3, 3], [0, 0.499999995], False, 2, [1, 1, 1], False), False)
sketch11.addGeometry(Part.BSplineCurve([Vector(-8.13002, -0.5, 0), Vector(-8.13002, 3.5, 0), Vector(-5.63002, 7.5, 0)], [3, 3], [0.499999995, 1], False, 2, [1, 1, 1], False), False)
sketch11.addGeometry(Part.LineSegment(Vector(-5.63002, 7.5, 0), Vector(-4.63002, 7.5, 0)), False)
sketch11.addGeometry(Part.LineSegment(Vector(-4.63002, 7.5, 0), Vector(-4.63002, -8.5, 0)), False)
sketch11.addGeometry(Part.LineSegment(Vector(-4.63002, -8.5, 0), Vector(-5.63002, -8.5, 0)), False)
sketch11.addConstraint(Sketcher.Constraint("Block", 0))
sketch11.addConstraint(Sketcher.Constraint("Block", 1))
sketch11.addConstraint(Sketcher.Constraint("Coincident", 1, 2, 2, 1))
sketch11.addConstraint(Sketcher.Constraint("Coincident", 2, 2, 3, 1))
sketch11.addConstraint(Sketcher.Constraint("Coincident", 3, 2, 4, 1))
sketch11.addConstraint(Sketcher.Constraint("Coincident", 4, 2, 0, 1))
sketch11.addConstraint(Sketcher.Constraint("Horizontal", 2))
sketch11.addConstraint(Sketcher.Constraint("Vertical", 3))
sketch11.addConstraint(Sketcher.Constraint("Horizontal", 4))
sketch11.addConstraint(Sketcher.Constraint("DistanceX", 2, 1, 2, 2, Q("1 mm")))
pocket6 = body.newObject("PartDesign::Pocket", "Pocket005")
pocket6.Profile = sketch11
pocket6.Length = 20
pocket6.Reversed = True

sketch12 = body.newObject("Sketcher::SketchObject", "Sketch011")
sketch12.AttachmentSupport = (doc.getObject("XZ_Plane"), [""])
sketch12.MapMode = "FlatFace"
sketch12.AttachmentOffset = App.Placement(Vector(0, 0, -20), App.Rotation())
sketch12.addGeometry(Part.LineSegment(Vector(-5.63002, 7.5, 0), Vector(-5.63002, -8.5, 0)), False)
sketch12.addGeometry(Part.BSplineCurve([Vector(-5.63002, -8.5, 0), Vector(-11.63002, -0.5, 0), Vector(-5.63002, 7.5, 0)], [3, 3], [0, 1], False, 2, [1, 1, 1], False), False)
sketch12.addConstraint(Sketcher.Constraint("Block", 1))
sketch12.addConstraint(Sketcher.Constraint("Coincident", 0, 1, 1, 2))
sketch12.addConstraint(Sketcher.Constraint("Coincident", 1, 1, 0, 2))
pocket7 = body.newObject("PartDesign::Pocket", "Pocket006")
pocket7.Profile = sketch12
pocket7.Length = 20
pocket7.Reversed = True

sketch13 = body.newObject("Sketcher::SketchObject", "Sketch012")
sketch13.AttachmentSupport = (doc.getObject("XZ_Plane"), [""])
sketch13.MapMode = "FlatFace"
sketch13.AttachmentOffset = App.Placement(Vector(0, 0, -20), App.Rotation())
sketch13.addGeometry(Part.BSplineCurve([Vector(8.86998, -8.5, 0), Vector(9.131367, -8.151484, 0), Vector(9.36998, -7.802967, 0)], [3, 3], [0, 0.043564535], False, 2, [1, 1, 1], False), False)
sketch13.addGeometry(Part.LineSegment(Vector(8.86998, -8.5, 0), Vector(8.86998, 7.5, 0)), False)
sketch13.addGeometry(Part.BSplineCurve([Vector(9.36998, 6.802967, 0), Vector(9.131367, 7.151484, 0), Vector(8.86998, 7.5, 0)], [3, 3], [0.956435465, 1], False, 2, [1, 1, 1], False), False)
sketch13.addGeometry(Part.LineSegment(Vector(9.36998, 6.802967, 0), Vector(9.36998, -7.802967, 0)), False)
sketch13.addConstraint(Sketcher.Constraint("Block", 0))
sketch13.addConstraint(Sketcher.Constraint("Block", 2))
sketch13.addConstraint(Sketcher.Constraint("Coincident", 0, 1, 1, 1))
sketch13.addConstraint(Sketcher.Constraint("Coincident", 1, 2, 2, 2))
sketch13.addConstraint(Sketcher.Constraint("Coincident", 2, 1, 3, 1))
sketch13.addConstraint(Sketcher.Constraint("Coincident", 3, 2, 0, 2))
pad6 = body.newObject("PartDesign::Pad", "Pad005")
pad6.Profile = sketch13
pad6.Length = 20

sketch14 = body.newObject("Sketcher::SketchObject", "Sketch013")
sketch14.AttachmentSupport = (doc.getObject("XZ_Plane"), [""])
sketch14.MapMode = "FlatFace"
sketch14.AttachmentOffset = App.Placement(Vector(0, 0, -20), App.Rotation())
sketch14.addGeometry(Part.LineSegment(Vector(9.36998, -7.802967, 0), Vector(9.36998, 6.802967, 0)), False)
sketch14.addGeometry(Part.BSplineCurve([Vector(9.36998, -7.802967, 0), Vector(14.36998, -0.5, 0), Vector(9.36998, 6.802967, 0)], [3, 3], [0, 1], False, 2, [1, 1, 1], False), False)
sketch14.addConstraint(Sketcher.Constraint("Block", 1))
sketch14.addConstraint(Sketcher.Constraint("Coincident", 0, 1, 1, 1))
sketch14.addConstraint(Sketcher.Constraint("Coincident", 1, 2, 0, 2))
pad7 = body.newObject("PartDesign::Pad", "Pad006")
pad7.Profile = sketch14
pad7.Length = 20

sketch15 = body.newObject("Sketcher::SketchObject", "Sketch014")
sketch15.AttachmentSupport = (doc.getObject("XZ_Plane"), [""])
sketch15.MapMode = "FlatFace"
sketch15.AttachmentOffset = App.Placement(Vector(0, 0, -20), App.Rotation())
sketch15.addGeometry(Part.LineSegment(Vector(8.86998, -8.5, 0), Vector(8.86998, 7.5, 0)), False)
sketch15.addGeometry(Part.BSplineCurve([Vector(12.36998, -0.5, 0), Vector(12.279368, 3.544515, 0), Vector(8.86998, 7.5, 0)], [3, 3], [0.494555468, 1], False, 2, [1, 1, 1], False), False)
sketch15.addGeometry(Part.BSplineCurve([Vector(9.36998, -8.5, 0), Vector(12.45864, -4.457382, 0), Vector(12.36998, -0.5, 0)], [3, 3], [0, 0.494555468], False, 2, [1, 1, 1], False), False)
sketch15.addGeometry(Part.LineSegment(Vector(9.36998, -8.5, 0), Vector(8.86998, -8.5, 0)), False)
sketch15.addConstraint(Sketcher.Constraint("Block", 1))
sketch15.addConstraint(Sketcher.Constraint("Block", 2))
sketch15.addConstraint(Sketcher.Constraint("Coincident", 0, 2, 1, 2))
sketch15.addConstraint(Sketcher.Constraint("Coincident", 2, 1, 3, 1))
sketch15.addConstraint(Sketcher.Constraint("Coincident", 3, 2, 0, 1))
sketch15.addConstraint(Sketcher.Constraint("Vertical", 0))
sketch15.addConstraint(Sketcher.Constraint("Horizontal", 3))
pocket8 = body.newObject("PartDesign::Pocket", "Pocket007")
pocket8.Profile = sketch15
pocket8.Length = 20
pocket8.Reversed = True

doc.recompute()
